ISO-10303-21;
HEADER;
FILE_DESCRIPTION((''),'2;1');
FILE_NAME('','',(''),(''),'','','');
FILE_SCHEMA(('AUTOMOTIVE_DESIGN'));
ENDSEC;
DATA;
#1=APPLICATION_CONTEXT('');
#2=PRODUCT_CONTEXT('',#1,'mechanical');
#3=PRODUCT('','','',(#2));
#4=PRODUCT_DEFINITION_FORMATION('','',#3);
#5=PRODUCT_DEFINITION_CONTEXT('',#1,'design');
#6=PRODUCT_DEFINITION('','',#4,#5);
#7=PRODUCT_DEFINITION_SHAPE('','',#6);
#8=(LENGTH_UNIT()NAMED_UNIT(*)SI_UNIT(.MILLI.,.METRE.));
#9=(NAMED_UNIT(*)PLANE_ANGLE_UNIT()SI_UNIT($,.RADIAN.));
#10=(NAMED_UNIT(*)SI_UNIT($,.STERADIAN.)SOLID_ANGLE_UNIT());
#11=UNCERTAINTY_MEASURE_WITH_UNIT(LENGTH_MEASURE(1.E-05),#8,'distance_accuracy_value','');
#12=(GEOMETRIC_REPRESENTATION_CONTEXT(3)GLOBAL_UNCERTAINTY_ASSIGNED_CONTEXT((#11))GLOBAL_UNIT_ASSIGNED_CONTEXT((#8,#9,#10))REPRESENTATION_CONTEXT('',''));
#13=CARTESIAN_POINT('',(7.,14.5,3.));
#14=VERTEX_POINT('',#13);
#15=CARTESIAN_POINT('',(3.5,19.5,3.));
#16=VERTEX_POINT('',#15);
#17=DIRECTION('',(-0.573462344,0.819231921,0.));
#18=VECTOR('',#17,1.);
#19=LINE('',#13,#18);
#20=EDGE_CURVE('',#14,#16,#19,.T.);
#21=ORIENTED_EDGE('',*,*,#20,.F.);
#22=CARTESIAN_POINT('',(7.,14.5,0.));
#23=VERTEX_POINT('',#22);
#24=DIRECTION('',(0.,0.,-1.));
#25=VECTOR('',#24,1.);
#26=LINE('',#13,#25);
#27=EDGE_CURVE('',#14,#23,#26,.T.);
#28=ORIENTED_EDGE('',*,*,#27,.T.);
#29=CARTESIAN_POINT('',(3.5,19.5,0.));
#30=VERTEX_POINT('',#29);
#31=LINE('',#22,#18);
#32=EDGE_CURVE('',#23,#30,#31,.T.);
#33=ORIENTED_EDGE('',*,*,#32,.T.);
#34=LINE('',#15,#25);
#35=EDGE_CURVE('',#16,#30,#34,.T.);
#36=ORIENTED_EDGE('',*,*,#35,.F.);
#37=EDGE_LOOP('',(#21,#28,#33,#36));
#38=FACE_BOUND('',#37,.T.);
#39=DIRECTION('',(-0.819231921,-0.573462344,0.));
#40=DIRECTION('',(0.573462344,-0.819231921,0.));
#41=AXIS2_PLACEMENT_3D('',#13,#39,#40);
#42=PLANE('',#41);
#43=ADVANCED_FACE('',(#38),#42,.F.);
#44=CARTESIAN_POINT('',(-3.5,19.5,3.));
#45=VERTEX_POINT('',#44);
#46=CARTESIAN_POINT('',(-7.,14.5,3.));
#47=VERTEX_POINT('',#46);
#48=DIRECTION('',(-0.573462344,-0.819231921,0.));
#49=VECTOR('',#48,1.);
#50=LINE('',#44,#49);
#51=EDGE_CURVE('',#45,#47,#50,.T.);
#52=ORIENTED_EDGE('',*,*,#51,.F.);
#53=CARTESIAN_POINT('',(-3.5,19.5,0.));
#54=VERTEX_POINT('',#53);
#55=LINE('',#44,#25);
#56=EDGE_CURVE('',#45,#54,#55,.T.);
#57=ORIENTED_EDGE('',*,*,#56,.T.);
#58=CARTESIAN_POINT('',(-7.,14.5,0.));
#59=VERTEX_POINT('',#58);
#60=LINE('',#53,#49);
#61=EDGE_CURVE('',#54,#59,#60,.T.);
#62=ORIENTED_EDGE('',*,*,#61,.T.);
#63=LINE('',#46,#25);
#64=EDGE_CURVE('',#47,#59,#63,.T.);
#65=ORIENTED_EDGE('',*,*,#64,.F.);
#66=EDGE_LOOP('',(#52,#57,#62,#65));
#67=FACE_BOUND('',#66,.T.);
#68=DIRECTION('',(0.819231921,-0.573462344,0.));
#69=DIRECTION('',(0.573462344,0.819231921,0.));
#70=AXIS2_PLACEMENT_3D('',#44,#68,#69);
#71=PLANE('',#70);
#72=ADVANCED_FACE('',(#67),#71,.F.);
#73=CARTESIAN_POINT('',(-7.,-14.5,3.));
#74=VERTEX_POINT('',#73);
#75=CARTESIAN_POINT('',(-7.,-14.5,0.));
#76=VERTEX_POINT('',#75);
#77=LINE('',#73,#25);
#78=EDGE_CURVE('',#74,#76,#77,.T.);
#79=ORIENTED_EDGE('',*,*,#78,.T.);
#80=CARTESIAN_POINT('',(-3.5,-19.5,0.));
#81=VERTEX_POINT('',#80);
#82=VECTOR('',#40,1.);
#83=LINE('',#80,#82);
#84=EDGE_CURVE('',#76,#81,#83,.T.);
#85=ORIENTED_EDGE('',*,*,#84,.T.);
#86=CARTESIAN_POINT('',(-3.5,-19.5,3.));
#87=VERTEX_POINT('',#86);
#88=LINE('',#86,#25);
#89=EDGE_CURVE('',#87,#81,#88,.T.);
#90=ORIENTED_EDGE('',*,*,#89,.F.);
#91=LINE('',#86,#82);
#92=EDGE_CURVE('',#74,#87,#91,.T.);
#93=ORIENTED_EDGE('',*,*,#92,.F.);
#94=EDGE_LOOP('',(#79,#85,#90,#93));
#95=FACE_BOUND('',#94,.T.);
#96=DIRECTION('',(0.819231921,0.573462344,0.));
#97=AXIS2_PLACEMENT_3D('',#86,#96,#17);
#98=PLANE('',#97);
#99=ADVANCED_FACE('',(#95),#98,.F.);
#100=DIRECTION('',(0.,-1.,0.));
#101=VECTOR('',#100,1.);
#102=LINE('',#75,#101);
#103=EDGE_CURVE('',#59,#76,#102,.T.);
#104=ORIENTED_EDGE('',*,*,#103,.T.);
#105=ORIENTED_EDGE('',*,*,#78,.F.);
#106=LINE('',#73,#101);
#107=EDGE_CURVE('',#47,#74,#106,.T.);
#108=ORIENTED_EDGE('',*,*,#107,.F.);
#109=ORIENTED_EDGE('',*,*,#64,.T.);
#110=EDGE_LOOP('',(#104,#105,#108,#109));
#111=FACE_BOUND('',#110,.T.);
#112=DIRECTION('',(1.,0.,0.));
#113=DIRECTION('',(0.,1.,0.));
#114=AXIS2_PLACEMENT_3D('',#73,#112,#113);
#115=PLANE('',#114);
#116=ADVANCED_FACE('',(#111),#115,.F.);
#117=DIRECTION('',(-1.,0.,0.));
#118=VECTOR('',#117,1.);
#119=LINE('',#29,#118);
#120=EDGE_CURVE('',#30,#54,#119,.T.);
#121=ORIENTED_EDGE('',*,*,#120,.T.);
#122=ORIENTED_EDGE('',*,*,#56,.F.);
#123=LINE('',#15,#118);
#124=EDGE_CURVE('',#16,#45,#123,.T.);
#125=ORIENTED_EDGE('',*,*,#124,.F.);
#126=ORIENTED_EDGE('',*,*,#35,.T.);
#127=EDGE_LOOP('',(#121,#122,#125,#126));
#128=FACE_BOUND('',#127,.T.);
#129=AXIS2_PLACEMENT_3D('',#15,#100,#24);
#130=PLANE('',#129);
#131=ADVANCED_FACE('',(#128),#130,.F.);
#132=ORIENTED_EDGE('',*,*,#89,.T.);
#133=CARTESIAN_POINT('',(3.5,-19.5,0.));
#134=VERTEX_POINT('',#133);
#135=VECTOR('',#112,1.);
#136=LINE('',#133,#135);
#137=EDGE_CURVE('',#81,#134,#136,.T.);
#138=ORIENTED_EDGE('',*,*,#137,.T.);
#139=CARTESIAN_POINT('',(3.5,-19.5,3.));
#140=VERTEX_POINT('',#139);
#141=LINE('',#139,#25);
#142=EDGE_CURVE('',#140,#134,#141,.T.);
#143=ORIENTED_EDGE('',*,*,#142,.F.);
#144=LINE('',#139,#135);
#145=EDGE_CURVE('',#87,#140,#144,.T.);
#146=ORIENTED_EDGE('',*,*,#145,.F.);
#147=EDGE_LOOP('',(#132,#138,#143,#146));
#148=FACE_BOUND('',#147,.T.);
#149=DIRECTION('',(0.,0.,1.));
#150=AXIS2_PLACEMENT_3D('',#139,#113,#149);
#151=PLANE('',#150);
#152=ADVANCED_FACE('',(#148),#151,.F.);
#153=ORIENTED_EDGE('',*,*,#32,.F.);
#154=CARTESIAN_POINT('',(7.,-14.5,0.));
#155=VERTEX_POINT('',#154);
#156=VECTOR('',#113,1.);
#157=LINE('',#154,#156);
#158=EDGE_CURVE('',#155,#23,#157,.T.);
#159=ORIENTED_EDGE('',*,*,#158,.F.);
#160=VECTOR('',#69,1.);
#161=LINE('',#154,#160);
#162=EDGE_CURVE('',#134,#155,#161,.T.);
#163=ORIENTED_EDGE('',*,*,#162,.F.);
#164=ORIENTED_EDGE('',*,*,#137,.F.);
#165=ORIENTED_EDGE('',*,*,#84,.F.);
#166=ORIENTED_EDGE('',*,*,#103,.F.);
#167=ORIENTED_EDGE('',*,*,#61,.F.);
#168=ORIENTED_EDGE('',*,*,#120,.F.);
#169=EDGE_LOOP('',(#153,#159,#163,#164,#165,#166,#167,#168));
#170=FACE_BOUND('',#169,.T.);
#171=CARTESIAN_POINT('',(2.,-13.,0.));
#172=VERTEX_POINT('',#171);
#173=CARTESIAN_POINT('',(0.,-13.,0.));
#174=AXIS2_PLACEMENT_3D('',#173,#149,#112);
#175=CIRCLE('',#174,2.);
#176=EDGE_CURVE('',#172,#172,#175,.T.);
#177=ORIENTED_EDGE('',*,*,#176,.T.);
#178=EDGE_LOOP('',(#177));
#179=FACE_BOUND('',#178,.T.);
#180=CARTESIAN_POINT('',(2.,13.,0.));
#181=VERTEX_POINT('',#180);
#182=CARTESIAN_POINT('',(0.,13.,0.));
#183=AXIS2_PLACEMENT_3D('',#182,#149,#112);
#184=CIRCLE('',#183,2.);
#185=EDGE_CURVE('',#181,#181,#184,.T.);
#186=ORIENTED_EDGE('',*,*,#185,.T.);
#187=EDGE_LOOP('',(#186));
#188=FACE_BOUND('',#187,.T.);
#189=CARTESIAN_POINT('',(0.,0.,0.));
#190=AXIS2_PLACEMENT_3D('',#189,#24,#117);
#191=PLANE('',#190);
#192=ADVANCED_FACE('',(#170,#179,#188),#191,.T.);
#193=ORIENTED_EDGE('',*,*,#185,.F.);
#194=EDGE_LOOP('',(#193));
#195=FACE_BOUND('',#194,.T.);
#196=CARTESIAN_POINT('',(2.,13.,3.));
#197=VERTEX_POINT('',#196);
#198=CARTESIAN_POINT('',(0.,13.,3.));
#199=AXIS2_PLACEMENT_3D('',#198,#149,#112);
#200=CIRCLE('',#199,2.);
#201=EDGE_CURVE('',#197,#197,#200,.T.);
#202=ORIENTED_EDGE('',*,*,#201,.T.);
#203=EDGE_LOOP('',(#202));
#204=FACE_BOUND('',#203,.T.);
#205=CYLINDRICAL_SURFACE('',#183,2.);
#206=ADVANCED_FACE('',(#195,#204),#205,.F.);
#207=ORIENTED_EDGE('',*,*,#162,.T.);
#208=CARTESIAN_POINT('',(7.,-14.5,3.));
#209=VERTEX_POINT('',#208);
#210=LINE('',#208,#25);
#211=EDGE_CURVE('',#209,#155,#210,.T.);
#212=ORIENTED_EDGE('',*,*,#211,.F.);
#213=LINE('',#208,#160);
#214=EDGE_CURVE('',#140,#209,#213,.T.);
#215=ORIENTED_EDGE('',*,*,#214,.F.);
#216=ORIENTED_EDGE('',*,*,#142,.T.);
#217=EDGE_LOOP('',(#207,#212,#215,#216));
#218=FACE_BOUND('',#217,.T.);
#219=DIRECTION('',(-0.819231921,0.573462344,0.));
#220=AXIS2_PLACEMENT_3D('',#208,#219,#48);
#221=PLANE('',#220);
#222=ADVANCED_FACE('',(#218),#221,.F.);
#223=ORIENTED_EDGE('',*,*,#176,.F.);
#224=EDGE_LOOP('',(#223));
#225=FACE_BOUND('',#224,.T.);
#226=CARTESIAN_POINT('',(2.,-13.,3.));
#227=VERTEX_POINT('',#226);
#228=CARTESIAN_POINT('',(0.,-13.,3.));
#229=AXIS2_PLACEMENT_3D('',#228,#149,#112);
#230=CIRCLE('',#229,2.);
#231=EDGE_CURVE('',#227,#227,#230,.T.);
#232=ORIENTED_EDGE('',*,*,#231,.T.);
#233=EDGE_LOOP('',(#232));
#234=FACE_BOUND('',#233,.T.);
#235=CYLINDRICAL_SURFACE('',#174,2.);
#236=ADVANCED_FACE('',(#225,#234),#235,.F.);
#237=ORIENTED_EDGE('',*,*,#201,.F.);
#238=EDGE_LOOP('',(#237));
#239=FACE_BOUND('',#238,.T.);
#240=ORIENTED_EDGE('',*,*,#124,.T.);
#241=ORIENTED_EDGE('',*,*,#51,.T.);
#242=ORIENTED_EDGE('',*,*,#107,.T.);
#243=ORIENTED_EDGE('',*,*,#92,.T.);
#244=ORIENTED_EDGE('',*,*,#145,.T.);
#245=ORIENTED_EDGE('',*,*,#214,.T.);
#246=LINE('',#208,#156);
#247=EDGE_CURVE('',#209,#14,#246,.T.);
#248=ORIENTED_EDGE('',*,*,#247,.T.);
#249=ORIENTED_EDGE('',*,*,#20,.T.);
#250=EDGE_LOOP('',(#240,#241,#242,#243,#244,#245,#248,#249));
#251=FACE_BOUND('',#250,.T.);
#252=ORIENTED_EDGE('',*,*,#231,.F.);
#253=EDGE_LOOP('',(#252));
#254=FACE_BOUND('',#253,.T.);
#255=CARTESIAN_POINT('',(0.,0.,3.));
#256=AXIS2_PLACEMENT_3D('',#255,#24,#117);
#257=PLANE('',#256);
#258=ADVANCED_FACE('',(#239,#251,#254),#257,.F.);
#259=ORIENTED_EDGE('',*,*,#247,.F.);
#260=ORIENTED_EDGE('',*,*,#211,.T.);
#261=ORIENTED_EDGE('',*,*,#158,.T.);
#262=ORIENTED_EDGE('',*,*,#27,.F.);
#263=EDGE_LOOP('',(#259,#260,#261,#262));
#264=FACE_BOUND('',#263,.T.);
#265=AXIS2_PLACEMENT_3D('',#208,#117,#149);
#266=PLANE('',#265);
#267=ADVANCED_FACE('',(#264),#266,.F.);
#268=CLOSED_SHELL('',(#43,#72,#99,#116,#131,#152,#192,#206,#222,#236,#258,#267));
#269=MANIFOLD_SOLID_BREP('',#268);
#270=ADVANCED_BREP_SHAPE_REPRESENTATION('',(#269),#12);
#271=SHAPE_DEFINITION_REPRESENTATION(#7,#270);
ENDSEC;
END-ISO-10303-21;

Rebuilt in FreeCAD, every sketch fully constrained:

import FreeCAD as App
import Part
import Sketcher
Q = App.Units.Quantity

doc = App.newDocument("Part")
params = doc.addObject("Spreadsheet::Sheet", "Params")
for row, (alias, value) in enumerate([
    ("sketch1_width", "7 mm"),
    ("sketch1_height", "29 mm"),
    ("pad1_length", "3 mm"),
    ("sketch2_diameter", "4 mm"),
    ("pocket1_length", "3 mm"),
], start=1):
    params.set(f"A{row}", alias)
    params.set(f"B{row}", "=" + value)
    params.setAlias(f"B{row}", alias)

body = doc.addObject("PartDesign::Body", "Body")

# Sketch on XY plane
sketch1 = body.newObject("Sketcher::SketchObject", "Sketch")
sketch1.AttachmentSupport = (doc.getObject("XY_Plane"), [""])
sketch1.MapMode = "FlatFace"
sketch1.addGeometry(Part.LineSegment(App.Vector(7, 14, 0), App.Vector(4, 20, 0)), False)
sketch1.addGeometry(Part.LineSegment(App.Vector(4, 20, 0), App.Vector(-4, 20, 0)), False)
sketch1.addGeometry(Part.LineSegment(App.Vector(-4, 20, 0), App.Vector(-7, 14, 0)), False)
sketch1.addGeometry(Part.LineSegment(App.Vector(-7, 14, 0), App.Vector(-7, -14, 0)), False)
sketch1.addGeometry(Part.LineSegment(App.Vector(-7, -14, 0), App.Vector(-4, -20, 0)), False)
sketch1.addGeometry(Part.LineSegment(App.Vector(-4, -20, 0), App.Vector(4, -20, 0)), False)
sketch1.addGeometry(Part.LineSegment(App.Vector(4, -20, 0), App.Vector(7, -14, 0)), False)
sketch1.addGeometry(Part.LineSegment(App.Vector(7, -14, 0), App.Vector(7, 14, 0)), False)
sketch1.addConstraint(Sketcher.Constraint("Coincident", 0, 2, 1, 1))
sketch1.addConstraint(Sketcher.Constraint("Coincident", 1, 2, 2, 1))
sketch1.addConstraint(Sketcher.Constraint("Coincident", 2, 2, 3, 1))
sketch1.addConstraint(Sketcher.Constraint("Coincident", 3, 2, 4, 1))
sketch1.addConstraint(Sketcher.Constraint("Coincident", 4, 2, 5, 1))
sketch1.addConstraint(Sketcher.Constraint("Coincident", 5, 2, 6, 1))
sketch1.addConstraint(Sketcher.Constraint("Coincident", 6, 2, 7, 1))
sketch1.addConstraint(Sketcher.Constraint("Coincident", 7, 2, 0, 1))
sketch1.addConstraint(Sketcher.Constraint("Horizontal", 1))
sketch1.addConstraint(Sketcher.Constraint("Vertical", 3))
sketch1.addConstraint(Sketcher.Constraint("Horizontal", 5))
sketch1.addConstraint(Sketcher.Constraint("Vertical", 7))
sketch1.addConstraint(Sketcher.Constraint("Symmetric", 0, 2, 4, 2, -1, 1))
sketch1.addConstraint(Sketcher.Constraint("Symmetric", 2, 2, 6, 2, -1, 1))
sketch1.addConstraint(Sketcher.Constraint("Parallel", 0, 4))
sketch1.addConstraint(Sketcher.Constraint("Parallel", 2, 6))
sketch1.addConstraint(Sketcher.Constraint("Horizontal", 3, 2, 6, 2))
sketch1.addConstraint(Sketcher.Constraint("Vertical", 1, 2, 4, 2))
sketch1.addConstraint(Sketcher.Constraint("DistanceX", 1, 2, 1, 1, Q("7 mm")))
sketch1.addConstraint(Sketcher.Constraint("DistanceY", 3, 2, 3, 1, Q("29 mm")))
sketch1.addConstraint(Sketcher.Constraint("DistanceX", 2, 2, -1, 1, Q("7 mm")))
sketch1.addConstraint(Sketcher.Constraint("DistanceY", 2, 2, 1, 2, Q("5 mm")))
sketch1.setExpression("Constraints[18]", "Params.sketch1_width")
sketch1.setExpression("Constraints[19]", "Params.sketch1_height")
pad1 = body.newObject("PartDesign::Pad", "Pad")
pad1.Profile = sketch1
pad1.setExpression("Length", "Params.pad1_length")

# Sketch on XY plane
sketch2 = body.newObject("Sketcher::SketchObject", "Sketch001")
sketch2.AttachmentSupport = (doc.getObject("XY_Plane"), [""])
sketch2.MapMode = "FlatFace"
sketch2.AttachmentOffset = App.Placement(App.Vector(0, 0, 3), App.Rotation())
sketch2.addGeometry(Part.Circle(App.Vector(0, 13, 0), App.Vector(0, 0, 1), 2), False)
sketch2.addGeometry(Part.Circle(App.Vector(0, -13, 0), App.Vector(0, 0, 1), 2), False)
sketch2.addConstraint(Sketcher.Constraint("Equal", 0, 1))
sketch2.addConstraint(Sketcher.Constraint("Symmetric", 0, 3, 1, 3, -1, 1))
sketch2.addConstraint(Sketcher.Constraint("PointOnObject", 0, 3, -2))
sketch2.addConstraint(Sketcher.Constraint("Diameter", 0, Q("4 mm")))
sketch2.addConstraint(Sketcher.Constraint("DistanceY", -1, 1, 0, 3, Q("13 mm")))
sketch2.setExpression("Constraints[3]", "Params.sketch2_diameter")
pocket1 = body.newObject("PartDesign::Pocket", "Pocket")
pocket1.Profile = sketch2
pocket1.setExpression("Length", "Params.pocket1_length")

doc.recompute()
